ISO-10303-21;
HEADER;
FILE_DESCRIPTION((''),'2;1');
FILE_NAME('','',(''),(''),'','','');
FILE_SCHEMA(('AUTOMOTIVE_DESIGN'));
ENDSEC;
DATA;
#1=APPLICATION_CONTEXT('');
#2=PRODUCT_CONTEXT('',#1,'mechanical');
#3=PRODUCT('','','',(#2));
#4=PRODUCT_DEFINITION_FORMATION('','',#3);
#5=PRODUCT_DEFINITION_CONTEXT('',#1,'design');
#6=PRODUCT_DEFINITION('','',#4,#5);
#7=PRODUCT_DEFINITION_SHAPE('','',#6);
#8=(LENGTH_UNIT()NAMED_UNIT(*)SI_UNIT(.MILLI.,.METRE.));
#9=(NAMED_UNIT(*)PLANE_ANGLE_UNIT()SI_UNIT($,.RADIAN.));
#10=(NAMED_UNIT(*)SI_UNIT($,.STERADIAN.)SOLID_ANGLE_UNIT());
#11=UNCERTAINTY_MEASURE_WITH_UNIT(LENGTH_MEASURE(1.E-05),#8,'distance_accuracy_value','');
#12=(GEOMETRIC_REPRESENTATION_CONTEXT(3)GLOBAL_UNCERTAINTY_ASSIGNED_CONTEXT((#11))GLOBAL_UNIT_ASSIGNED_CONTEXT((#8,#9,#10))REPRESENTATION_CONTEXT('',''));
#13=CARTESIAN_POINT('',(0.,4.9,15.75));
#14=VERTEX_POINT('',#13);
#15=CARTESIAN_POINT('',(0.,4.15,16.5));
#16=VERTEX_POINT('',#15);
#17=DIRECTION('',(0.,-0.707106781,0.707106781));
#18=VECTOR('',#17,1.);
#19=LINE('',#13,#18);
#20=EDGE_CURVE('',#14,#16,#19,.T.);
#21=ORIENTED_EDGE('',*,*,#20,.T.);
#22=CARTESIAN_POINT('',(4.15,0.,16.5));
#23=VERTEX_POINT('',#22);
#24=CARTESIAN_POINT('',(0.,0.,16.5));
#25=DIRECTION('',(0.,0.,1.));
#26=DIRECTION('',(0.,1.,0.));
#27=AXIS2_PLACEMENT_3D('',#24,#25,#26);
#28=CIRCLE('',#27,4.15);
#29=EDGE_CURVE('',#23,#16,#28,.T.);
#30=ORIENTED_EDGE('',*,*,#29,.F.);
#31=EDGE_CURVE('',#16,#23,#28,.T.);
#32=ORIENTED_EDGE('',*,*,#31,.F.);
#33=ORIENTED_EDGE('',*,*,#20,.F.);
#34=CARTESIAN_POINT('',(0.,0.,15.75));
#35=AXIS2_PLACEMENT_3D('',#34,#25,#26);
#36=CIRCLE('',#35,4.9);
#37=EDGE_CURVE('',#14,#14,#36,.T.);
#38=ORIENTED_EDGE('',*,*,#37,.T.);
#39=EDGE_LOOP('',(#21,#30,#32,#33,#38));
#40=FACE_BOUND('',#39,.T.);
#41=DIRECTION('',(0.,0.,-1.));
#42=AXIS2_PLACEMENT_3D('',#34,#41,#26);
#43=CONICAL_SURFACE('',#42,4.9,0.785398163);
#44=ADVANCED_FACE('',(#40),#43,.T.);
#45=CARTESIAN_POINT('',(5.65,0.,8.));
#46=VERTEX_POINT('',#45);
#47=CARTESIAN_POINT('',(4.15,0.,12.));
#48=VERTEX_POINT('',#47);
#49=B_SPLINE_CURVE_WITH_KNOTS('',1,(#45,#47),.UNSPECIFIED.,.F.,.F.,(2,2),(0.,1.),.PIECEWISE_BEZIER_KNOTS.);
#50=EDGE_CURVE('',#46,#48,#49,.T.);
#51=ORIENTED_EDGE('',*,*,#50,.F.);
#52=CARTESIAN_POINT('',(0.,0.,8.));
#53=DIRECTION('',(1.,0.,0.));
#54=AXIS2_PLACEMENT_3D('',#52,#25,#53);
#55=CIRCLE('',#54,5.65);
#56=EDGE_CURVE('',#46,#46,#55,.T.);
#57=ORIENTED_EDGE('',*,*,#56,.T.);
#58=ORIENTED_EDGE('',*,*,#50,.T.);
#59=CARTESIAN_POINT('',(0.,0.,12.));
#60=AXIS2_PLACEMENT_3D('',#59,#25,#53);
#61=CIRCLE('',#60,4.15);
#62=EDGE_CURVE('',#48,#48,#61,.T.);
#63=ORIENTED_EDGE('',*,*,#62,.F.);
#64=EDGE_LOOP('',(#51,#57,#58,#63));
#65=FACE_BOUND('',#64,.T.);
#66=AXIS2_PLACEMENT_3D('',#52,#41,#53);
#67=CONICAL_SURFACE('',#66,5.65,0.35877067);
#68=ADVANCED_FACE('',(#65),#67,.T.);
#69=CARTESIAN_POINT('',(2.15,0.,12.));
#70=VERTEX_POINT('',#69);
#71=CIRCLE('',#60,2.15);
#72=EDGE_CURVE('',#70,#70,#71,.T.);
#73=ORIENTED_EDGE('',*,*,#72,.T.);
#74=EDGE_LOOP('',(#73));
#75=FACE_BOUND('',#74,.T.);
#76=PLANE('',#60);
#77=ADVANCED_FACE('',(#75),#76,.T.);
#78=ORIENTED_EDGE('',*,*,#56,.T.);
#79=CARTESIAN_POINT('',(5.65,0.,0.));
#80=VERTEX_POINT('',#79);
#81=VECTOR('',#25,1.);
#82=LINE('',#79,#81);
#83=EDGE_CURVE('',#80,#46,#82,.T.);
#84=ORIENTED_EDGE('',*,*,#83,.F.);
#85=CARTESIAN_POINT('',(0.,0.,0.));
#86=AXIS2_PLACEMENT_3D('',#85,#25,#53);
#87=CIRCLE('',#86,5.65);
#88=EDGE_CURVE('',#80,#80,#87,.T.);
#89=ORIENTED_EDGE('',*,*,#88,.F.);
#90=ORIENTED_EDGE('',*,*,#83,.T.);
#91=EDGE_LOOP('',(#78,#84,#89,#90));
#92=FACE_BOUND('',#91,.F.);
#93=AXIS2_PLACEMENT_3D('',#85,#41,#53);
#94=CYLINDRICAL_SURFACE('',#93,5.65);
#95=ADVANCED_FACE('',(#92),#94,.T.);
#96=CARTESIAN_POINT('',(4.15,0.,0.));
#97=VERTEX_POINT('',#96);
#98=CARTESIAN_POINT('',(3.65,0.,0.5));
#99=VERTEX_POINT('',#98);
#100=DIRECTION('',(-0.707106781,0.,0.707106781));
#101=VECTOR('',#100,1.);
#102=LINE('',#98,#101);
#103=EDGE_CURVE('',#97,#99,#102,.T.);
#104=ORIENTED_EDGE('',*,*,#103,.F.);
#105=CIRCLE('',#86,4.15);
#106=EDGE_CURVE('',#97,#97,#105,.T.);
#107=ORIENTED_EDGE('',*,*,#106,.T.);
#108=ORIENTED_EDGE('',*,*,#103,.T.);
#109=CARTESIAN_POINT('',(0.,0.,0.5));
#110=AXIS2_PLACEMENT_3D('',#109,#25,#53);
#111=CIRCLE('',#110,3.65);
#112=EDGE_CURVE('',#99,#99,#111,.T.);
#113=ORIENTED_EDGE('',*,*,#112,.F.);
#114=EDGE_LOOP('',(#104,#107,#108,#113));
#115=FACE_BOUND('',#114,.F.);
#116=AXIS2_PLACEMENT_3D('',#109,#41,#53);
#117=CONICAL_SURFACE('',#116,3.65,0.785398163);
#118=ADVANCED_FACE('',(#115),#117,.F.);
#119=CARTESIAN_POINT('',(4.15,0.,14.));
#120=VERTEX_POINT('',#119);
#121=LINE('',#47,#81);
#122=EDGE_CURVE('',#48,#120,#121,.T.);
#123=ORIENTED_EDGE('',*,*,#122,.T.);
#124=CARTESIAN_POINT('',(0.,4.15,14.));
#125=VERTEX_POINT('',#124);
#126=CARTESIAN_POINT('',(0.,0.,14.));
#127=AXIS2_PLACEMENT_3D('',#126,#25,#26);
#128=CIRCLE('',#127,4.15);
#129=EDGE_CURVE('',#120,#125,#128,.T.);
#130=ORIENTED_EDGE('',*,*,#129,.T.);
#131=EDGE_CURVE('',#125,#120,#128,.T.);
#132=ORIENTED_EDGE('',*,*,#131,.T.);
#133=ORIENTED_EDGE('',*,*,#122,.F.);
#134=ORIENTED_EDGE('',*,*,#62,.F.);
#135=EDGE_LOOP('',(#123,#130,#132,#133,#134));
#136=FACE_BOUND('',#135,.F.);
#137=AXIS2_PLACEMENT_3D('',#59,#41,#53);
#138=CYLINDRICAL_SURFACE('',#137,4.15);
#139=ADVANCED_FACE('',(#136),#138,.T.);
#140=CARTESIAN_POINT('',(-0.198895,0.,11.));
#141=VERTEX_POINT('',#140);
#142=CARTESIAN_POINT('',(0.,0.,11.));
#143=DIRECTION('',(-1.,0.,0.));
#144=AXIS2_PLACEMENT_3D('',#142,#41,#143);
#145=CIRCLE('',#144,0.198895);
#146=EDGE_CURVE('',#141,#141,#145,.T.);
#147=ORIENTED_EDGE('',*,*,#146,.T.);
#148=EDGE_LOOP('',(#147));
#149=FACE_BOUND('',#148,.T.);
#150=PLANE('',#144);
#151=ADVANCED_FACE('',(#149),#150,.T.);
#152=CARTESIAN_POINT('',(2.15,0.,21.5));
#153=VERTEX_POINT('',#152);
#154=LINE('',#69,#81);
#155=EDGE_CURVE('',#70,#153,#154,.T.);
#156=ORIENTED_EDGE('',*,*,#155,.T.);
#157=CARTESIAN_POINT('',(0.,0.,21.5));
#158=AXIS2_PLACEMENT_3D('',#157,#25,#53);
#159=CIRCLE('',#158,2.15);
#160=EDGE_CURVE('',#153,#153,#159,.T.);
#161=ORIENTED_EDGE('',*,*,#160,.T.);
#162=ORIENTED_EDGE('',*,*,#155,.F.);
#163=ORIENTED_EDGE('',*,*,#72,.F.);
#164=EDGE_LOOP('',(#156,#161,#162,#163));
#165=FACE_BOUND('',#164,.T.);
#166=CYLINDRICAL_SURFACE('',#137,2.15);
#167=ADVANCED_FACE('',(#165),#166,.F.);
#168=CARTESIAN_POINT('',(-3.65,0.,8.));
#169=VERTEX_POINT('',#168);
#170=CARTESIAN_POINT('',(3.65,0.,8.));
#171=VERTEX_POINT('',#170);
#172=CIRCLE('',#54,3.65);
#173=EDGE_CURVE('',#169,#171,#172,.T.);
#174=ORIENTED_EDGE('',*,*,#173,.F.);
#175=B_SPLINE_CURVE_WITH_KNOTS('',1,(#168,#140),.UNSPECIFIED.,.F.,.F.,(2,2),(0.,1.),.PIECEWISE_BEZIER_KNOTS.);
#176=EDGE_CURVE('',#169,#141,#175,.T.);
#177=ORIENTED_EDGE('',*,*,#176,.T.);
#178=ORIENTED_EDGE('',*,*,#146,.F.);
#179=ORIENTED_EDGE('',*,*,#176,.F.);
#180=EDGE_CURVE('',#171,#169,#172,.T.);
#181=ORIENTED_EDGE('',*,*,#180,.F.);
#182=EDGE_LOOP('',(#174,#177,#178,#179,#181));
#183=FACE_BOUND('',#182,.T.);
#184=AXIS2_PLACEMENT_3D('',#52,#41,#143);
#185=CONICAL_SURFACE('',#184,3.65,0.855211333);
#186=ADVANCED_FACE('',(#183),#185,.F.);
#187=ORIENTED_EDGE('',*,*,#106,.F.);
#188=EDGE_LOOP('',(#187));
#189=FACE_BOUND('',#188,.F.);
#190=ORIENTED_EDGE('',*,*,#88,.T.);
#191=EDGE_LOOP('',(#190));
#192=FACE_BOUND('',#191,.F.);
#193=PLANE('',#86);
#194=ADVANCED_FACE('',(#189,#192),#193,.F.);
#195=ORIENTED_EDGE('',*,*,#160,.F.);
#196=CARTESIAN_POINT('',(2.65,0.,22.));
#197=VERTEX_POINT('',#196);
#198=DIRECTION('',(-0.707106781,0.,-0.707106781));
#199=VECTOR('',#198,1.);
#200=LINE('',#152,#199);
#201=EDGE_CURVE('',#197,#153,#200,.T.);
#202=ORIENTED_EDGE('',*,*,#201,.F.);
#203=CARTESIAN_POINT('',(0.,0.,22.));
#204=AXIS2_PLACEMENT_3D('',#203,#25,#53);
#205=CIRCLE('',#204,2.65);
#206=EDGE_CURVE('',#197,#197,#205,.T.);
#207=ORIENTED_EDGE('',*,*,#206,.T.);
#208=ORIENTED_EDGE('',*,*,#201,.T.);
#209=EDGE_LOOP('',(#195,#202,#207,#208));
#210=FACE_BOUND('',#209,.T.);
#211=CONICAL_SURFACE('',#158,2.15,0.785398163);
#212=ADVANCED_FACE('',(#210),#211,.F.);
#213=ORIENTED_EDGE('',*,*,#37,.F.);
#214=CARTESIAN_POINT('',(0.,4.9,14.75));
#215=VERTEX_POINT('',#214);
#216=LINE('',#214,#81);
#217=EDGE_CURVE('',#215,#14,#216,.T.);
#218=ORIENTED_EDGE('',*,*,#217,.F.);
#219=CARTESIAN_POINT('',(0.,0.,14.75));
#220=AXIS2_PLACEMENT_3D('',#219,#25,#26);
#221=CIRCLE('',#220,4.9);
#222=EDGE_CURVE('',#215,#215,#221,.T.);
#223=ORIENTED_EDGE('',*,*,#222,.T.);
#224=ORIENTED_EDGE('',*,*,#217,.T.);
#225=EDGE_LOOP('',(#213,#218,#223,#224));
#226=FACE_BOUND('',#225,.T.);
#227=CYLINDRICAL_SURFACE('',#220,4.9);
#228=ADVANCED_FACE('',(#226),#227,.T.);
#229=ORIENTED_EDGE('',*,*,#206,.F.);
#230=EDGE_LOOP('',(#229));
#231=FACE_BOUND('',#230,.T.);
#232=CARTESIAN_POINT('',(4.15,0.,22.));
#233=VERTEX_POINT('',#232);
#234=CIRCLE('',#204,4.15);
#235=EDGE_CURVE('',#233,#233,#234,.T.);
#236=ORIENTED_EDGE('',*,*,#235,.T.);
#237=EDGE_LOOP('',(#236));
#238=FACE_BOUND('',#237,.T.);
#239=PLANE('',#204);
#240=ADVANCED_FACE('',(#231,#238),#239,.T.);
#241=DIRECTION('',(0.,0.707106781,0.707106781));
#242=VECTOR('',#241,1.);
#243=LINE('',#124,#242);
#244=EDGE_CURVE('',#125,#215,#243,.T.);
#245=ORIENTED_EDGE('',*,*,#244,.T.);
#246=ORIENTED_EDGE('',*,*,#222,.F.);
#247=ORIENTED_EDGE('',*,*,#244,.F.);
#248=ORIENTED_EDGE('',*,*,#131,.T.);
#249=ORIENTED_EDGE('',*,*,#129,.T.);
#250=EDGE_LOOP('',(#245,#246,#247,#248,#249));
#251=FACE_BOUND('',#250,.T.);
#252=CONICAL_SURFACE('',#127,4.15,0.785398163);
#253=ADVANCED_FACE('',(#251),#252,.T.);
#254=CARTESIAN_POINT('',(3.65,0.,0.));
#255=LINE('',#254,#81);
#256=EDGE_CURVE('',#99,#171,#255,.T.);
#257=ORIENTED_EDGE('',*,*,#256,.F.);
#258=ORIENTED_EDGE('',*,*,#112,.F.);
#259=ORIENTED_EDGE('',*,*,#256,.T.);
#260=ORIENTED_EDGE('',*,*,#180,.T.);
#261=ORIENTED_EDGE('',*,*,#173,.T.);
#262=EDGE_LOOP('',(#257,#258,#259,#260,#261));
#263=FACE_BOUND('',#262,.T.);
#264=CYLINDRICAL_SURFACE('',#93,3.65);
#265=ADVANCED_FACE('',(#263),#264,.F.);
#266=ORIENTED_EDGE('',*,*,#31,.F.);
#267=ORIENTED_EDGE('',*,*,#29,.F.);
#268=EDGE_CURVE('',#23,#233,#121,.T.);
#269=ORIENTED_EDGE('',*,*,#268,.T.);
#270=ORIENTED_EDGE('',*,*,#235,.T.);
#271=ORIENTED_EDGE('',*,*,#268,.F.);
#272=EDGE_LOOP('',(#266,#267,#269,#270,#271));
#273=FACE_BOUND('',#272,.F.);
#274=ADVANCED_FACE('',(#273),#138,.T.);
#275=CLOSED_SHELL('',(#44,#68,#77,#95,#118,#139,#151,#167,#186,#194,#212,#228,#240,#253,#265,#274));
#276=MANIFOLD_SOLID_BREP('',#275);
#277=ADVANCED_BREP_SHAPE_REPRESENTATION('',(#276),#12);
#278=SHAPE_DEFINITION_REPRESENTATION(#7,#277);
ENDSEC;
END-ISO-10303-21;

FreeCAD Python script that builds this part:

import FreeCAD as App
import Part
import Sketcher
from FreeCAD import Vector
Q = App.Units.Quantity


def edges_at(feature, points):
    """Names of the edges that pass closest to the given points."""
    edges = feature.Shape.Edges
    near = lambda p: min(range(len(edges)), key=lambda i: edges[i].distToShape(Part.Vertex(*p))[0])
    return sorted({f"Edge{near(p) + 1}" for p in points})

doc = App.newDocument("Part")
body = doc.addObject("PartDesign::Body", "Body")

# Sketch on XY plane
sketch1 = body.newObject("Sketcher::SketchObject", "Sketch")
sketch1.AttachmentSupport = (doc.getObject("XY_Plane"), [""])
sketch1.MapMode = "FlatFace"
sketch1.addGeometry(Part.Circle(Vector(0, 0, 0), Vector(0, 0, 1), 5.65), False)
sketch1.addGeometry(Part.Circle(Vector(0, 0, 0), Vector(0, 0, 1), 3.65), False)
sketch1.addConstraint(Sketcher.Constraint("Coincident", 0, 3, -1, 1))
sketch1.addConstraint(Sketcher.Constraint("Coincident", 1, 3, -1, 1))
sketch1.addConstraint(Sketcher.Constraint("Diameter", 0, Q("11.3 mm")))
sketch1.addConstraint(Sketcher.Constraint("Diameter", 1, Q("7.3 mm")))
pad1 = body.newObject("PartDesign::Pad", "Pad")
pad1.Profile = sketch1
pad1.Length = 8

# Sketch on XY plane
sketch2 = body.newObject("Sketcher::SketchObject", "Sketch001")
sketch2.AttachmentSupport = (doc.getObject("XY_Plane"), [""])
sketch2.MapMode = "FlatFace"
sketch2.AttachmentOffset = App.Placement(Vector(0, 0, 8), App.Rotation())
sketch2.addGeometry(Part.Circle(Vector(0, 0, 0), Vector(0, 0, 1), 5.65), False)
sketch2.addConstraint(Sketcher.Constraint("Coincident", 0, 3, -1, 1))
sketch2.addConstraint(Sketcher.Constraint("Diameter", 0, Q("11.3 mm")))

# Sketch on XY plane
sketch3 = body.newObject("Sketcher::SketchObject", "Sketch002")
sketch3.AttachmentSupport = (doc.getObject("XY_Plane"), [""])
sketch3.MapMode = "FlatFace"
sketch3.AttachmentOffset = App.Placement(Vector(0, 0, 12), App.Rotation())
sketch3.addGeometry(Part.Circle(Vector(0, 0, 0), Vector(0, 0, 1), 4.15), False)
sketch3.addConstraint(Sketcher.Constraint("Coincident", 0, 3, -1, 1))
sketch3.addConstraint(Sketcher.Constraint("Diameter", 0, Q("8.3 mm")))

additiveloft = body.newObject("PartDesign::AdditiveLoft", "AdditiveLoft")
additiveloft.Profile = sketch2
additiveloft.Sections = [sketch3]

# Sketch on XY plane
sketch4 = body.newObject("Sketcher::SketchObject", "Sketch003")
sketch4.AttachmentSupport = (doc.getObject("XY_Plane"), [""])
sketch4.MapMode = "FlatFace"
sketch4.AttachmentOffset = App.Placement(Vector(0, 0, 8), App.Rotation())
sketch4.addGeometry(Part.Circle(Vector(0, 0, 0), Vector(0, 0, 1), 3.65), False)
sketch4.addConstraint(Sketcher.Constraint("Coincident", 0, 3, -1, 1))
sketch4.addConstraint(Sketcher.Constraint("Diameter", 0, Q("7.3 mm")))
pocket1 = body.newObject("PartDesign::Pocket", "Pocket")
pocket1.Profile = sketch4
pocket1.Length = 3
pocket1.Reversed = True
pocket1.TaperAngle = -49

# Sketch on XY plane
sketch5 = body.newObject("Sketcher::SketchObject", "Sketch004")
sketch5.AttachmentSupport = (doc.getObject("XY_Plane"), [""])
sketch5.MapMode = "FlatFace"
sketch5.AttachmentOffset = App.Placement(Vector(0, 0, 12), App.Rotation())
sketch5.addGeometry(Part.Circle(Vector(0, 0, 0), Vector(0, 0, 1), 4.15), False)
sketch5.addGeometry(Part.Circle(Vector(0, 0, 0), Vector(0, 0, 1), 2.15), False)
sketch5.addConstraint(Sketcher.Constraint("Coincident", 0, 3, -1, 1))
sketch5.addConstraint(Sketcher.Constraint("Coincident", 1, 3, -1, 1))
sketch5.addConstraint(Sketcher.Constraint("Diameter", 0, Q("8.3 mm")))
sketch5.addConstraint(Sketcher.Constraint("Diameter", 1, Q("4.3 mm")))
pad2 = body.newObject("PartDesign::Pad", "Pad001")
pad2.Profile = sketch5
pad2.Length = 10

# Sketch on YZ plane
sketch6 = body.newObject("Sketcher::SketchObject", "Sketch005")
sketch6.AttachmentSupport = (doc.getObject("YZ_Plane"), [""])
sketch6.MapMode = "FlatFace"
sketch6.addGeometry(Part.LineSegment(Vector(4.15, 14, 0), Vector(4.9, 14.75, 0)), False)
sketch6.addGeometry(Part.LineSegment(Vector(4.9, 14.75, 0), Vector(4.9, 15.75, 0)), False)
sketch6.addGeometry(Part.LineSegment(Vector(4.9, 15.75, 0), Vector(4.15, 16.5, 0)), False)
sketch6.addGeometry(Part.LineSegment(Vector(4.15, 16.5, 0), Vector(4.15, 14, 0)), False)
sketch6.addConstraint(Sketcher.Constraint("Coincident", 0, 2, 1, 1))
sketch6.addConstraint(Sketcher.Constraint("Coincident", 1, 2, 2, 1))
sketch6.addConstraint(Sketcher.Constraint("Coincident", 2, 2, 3, 1))
sketch6.addConstraint(Sketcher.Constraint("Coincident", 3, 2, 0, 1))
sketch6.addConstraint(Sketcher.Constraint("Vertical", 1))
sketch6.addConstraint(Sketcher.Constraint("Vertical", 3))
sketch6.addConstraint(Sketcher.Constraint("Perpendicular", 0, 2))
sketch6.addConstraint(Sketcher.Constraint("Equal", 0, 2))
sketch6.addConstraint(Sketcher.Constraint("DistanceY", 1, 1, 1, 2, Q("1 mm")))
sketch6.addConstraint(Sketcher.Constraint("DistanceY", 3, 2, 3, 1, Q("2.5 mm")))
sketch6.addConstraint(Sketcher.Constraint("DistanceY", -1, 1, 3, 2, Q("14 mm")))
sketch6.addConstraint(Sketcher.Constraint("DistanceX", -1, 1, 0, 2, Q("4.9 mm")))
revolution = body.newObject("PartDesign::Revolution", "Revolution")
revolution.Profile = sketch6
revolution.ReferenceAxis = (sketch6, ["V_Axis"])
revolution.Angle = 360
doc.recompute()

chamfer = body.newObject("PartDesign::Chamfer", "Chamfer")
chamfer.Base = (revolution, edges_at(revolution, [(-3.65, 0, 0)]))
chamfer.Size = 0.5
doc.recompute()

chamfer2 = body.newObject("PartDesign::Chamfer", "Chamfer001")
chamfer2.Base = (chamfer, edges_at(chamfer, [(-2.15, 0, 22)]))
chamfer2.Size = 0.5

doc.recompute()
